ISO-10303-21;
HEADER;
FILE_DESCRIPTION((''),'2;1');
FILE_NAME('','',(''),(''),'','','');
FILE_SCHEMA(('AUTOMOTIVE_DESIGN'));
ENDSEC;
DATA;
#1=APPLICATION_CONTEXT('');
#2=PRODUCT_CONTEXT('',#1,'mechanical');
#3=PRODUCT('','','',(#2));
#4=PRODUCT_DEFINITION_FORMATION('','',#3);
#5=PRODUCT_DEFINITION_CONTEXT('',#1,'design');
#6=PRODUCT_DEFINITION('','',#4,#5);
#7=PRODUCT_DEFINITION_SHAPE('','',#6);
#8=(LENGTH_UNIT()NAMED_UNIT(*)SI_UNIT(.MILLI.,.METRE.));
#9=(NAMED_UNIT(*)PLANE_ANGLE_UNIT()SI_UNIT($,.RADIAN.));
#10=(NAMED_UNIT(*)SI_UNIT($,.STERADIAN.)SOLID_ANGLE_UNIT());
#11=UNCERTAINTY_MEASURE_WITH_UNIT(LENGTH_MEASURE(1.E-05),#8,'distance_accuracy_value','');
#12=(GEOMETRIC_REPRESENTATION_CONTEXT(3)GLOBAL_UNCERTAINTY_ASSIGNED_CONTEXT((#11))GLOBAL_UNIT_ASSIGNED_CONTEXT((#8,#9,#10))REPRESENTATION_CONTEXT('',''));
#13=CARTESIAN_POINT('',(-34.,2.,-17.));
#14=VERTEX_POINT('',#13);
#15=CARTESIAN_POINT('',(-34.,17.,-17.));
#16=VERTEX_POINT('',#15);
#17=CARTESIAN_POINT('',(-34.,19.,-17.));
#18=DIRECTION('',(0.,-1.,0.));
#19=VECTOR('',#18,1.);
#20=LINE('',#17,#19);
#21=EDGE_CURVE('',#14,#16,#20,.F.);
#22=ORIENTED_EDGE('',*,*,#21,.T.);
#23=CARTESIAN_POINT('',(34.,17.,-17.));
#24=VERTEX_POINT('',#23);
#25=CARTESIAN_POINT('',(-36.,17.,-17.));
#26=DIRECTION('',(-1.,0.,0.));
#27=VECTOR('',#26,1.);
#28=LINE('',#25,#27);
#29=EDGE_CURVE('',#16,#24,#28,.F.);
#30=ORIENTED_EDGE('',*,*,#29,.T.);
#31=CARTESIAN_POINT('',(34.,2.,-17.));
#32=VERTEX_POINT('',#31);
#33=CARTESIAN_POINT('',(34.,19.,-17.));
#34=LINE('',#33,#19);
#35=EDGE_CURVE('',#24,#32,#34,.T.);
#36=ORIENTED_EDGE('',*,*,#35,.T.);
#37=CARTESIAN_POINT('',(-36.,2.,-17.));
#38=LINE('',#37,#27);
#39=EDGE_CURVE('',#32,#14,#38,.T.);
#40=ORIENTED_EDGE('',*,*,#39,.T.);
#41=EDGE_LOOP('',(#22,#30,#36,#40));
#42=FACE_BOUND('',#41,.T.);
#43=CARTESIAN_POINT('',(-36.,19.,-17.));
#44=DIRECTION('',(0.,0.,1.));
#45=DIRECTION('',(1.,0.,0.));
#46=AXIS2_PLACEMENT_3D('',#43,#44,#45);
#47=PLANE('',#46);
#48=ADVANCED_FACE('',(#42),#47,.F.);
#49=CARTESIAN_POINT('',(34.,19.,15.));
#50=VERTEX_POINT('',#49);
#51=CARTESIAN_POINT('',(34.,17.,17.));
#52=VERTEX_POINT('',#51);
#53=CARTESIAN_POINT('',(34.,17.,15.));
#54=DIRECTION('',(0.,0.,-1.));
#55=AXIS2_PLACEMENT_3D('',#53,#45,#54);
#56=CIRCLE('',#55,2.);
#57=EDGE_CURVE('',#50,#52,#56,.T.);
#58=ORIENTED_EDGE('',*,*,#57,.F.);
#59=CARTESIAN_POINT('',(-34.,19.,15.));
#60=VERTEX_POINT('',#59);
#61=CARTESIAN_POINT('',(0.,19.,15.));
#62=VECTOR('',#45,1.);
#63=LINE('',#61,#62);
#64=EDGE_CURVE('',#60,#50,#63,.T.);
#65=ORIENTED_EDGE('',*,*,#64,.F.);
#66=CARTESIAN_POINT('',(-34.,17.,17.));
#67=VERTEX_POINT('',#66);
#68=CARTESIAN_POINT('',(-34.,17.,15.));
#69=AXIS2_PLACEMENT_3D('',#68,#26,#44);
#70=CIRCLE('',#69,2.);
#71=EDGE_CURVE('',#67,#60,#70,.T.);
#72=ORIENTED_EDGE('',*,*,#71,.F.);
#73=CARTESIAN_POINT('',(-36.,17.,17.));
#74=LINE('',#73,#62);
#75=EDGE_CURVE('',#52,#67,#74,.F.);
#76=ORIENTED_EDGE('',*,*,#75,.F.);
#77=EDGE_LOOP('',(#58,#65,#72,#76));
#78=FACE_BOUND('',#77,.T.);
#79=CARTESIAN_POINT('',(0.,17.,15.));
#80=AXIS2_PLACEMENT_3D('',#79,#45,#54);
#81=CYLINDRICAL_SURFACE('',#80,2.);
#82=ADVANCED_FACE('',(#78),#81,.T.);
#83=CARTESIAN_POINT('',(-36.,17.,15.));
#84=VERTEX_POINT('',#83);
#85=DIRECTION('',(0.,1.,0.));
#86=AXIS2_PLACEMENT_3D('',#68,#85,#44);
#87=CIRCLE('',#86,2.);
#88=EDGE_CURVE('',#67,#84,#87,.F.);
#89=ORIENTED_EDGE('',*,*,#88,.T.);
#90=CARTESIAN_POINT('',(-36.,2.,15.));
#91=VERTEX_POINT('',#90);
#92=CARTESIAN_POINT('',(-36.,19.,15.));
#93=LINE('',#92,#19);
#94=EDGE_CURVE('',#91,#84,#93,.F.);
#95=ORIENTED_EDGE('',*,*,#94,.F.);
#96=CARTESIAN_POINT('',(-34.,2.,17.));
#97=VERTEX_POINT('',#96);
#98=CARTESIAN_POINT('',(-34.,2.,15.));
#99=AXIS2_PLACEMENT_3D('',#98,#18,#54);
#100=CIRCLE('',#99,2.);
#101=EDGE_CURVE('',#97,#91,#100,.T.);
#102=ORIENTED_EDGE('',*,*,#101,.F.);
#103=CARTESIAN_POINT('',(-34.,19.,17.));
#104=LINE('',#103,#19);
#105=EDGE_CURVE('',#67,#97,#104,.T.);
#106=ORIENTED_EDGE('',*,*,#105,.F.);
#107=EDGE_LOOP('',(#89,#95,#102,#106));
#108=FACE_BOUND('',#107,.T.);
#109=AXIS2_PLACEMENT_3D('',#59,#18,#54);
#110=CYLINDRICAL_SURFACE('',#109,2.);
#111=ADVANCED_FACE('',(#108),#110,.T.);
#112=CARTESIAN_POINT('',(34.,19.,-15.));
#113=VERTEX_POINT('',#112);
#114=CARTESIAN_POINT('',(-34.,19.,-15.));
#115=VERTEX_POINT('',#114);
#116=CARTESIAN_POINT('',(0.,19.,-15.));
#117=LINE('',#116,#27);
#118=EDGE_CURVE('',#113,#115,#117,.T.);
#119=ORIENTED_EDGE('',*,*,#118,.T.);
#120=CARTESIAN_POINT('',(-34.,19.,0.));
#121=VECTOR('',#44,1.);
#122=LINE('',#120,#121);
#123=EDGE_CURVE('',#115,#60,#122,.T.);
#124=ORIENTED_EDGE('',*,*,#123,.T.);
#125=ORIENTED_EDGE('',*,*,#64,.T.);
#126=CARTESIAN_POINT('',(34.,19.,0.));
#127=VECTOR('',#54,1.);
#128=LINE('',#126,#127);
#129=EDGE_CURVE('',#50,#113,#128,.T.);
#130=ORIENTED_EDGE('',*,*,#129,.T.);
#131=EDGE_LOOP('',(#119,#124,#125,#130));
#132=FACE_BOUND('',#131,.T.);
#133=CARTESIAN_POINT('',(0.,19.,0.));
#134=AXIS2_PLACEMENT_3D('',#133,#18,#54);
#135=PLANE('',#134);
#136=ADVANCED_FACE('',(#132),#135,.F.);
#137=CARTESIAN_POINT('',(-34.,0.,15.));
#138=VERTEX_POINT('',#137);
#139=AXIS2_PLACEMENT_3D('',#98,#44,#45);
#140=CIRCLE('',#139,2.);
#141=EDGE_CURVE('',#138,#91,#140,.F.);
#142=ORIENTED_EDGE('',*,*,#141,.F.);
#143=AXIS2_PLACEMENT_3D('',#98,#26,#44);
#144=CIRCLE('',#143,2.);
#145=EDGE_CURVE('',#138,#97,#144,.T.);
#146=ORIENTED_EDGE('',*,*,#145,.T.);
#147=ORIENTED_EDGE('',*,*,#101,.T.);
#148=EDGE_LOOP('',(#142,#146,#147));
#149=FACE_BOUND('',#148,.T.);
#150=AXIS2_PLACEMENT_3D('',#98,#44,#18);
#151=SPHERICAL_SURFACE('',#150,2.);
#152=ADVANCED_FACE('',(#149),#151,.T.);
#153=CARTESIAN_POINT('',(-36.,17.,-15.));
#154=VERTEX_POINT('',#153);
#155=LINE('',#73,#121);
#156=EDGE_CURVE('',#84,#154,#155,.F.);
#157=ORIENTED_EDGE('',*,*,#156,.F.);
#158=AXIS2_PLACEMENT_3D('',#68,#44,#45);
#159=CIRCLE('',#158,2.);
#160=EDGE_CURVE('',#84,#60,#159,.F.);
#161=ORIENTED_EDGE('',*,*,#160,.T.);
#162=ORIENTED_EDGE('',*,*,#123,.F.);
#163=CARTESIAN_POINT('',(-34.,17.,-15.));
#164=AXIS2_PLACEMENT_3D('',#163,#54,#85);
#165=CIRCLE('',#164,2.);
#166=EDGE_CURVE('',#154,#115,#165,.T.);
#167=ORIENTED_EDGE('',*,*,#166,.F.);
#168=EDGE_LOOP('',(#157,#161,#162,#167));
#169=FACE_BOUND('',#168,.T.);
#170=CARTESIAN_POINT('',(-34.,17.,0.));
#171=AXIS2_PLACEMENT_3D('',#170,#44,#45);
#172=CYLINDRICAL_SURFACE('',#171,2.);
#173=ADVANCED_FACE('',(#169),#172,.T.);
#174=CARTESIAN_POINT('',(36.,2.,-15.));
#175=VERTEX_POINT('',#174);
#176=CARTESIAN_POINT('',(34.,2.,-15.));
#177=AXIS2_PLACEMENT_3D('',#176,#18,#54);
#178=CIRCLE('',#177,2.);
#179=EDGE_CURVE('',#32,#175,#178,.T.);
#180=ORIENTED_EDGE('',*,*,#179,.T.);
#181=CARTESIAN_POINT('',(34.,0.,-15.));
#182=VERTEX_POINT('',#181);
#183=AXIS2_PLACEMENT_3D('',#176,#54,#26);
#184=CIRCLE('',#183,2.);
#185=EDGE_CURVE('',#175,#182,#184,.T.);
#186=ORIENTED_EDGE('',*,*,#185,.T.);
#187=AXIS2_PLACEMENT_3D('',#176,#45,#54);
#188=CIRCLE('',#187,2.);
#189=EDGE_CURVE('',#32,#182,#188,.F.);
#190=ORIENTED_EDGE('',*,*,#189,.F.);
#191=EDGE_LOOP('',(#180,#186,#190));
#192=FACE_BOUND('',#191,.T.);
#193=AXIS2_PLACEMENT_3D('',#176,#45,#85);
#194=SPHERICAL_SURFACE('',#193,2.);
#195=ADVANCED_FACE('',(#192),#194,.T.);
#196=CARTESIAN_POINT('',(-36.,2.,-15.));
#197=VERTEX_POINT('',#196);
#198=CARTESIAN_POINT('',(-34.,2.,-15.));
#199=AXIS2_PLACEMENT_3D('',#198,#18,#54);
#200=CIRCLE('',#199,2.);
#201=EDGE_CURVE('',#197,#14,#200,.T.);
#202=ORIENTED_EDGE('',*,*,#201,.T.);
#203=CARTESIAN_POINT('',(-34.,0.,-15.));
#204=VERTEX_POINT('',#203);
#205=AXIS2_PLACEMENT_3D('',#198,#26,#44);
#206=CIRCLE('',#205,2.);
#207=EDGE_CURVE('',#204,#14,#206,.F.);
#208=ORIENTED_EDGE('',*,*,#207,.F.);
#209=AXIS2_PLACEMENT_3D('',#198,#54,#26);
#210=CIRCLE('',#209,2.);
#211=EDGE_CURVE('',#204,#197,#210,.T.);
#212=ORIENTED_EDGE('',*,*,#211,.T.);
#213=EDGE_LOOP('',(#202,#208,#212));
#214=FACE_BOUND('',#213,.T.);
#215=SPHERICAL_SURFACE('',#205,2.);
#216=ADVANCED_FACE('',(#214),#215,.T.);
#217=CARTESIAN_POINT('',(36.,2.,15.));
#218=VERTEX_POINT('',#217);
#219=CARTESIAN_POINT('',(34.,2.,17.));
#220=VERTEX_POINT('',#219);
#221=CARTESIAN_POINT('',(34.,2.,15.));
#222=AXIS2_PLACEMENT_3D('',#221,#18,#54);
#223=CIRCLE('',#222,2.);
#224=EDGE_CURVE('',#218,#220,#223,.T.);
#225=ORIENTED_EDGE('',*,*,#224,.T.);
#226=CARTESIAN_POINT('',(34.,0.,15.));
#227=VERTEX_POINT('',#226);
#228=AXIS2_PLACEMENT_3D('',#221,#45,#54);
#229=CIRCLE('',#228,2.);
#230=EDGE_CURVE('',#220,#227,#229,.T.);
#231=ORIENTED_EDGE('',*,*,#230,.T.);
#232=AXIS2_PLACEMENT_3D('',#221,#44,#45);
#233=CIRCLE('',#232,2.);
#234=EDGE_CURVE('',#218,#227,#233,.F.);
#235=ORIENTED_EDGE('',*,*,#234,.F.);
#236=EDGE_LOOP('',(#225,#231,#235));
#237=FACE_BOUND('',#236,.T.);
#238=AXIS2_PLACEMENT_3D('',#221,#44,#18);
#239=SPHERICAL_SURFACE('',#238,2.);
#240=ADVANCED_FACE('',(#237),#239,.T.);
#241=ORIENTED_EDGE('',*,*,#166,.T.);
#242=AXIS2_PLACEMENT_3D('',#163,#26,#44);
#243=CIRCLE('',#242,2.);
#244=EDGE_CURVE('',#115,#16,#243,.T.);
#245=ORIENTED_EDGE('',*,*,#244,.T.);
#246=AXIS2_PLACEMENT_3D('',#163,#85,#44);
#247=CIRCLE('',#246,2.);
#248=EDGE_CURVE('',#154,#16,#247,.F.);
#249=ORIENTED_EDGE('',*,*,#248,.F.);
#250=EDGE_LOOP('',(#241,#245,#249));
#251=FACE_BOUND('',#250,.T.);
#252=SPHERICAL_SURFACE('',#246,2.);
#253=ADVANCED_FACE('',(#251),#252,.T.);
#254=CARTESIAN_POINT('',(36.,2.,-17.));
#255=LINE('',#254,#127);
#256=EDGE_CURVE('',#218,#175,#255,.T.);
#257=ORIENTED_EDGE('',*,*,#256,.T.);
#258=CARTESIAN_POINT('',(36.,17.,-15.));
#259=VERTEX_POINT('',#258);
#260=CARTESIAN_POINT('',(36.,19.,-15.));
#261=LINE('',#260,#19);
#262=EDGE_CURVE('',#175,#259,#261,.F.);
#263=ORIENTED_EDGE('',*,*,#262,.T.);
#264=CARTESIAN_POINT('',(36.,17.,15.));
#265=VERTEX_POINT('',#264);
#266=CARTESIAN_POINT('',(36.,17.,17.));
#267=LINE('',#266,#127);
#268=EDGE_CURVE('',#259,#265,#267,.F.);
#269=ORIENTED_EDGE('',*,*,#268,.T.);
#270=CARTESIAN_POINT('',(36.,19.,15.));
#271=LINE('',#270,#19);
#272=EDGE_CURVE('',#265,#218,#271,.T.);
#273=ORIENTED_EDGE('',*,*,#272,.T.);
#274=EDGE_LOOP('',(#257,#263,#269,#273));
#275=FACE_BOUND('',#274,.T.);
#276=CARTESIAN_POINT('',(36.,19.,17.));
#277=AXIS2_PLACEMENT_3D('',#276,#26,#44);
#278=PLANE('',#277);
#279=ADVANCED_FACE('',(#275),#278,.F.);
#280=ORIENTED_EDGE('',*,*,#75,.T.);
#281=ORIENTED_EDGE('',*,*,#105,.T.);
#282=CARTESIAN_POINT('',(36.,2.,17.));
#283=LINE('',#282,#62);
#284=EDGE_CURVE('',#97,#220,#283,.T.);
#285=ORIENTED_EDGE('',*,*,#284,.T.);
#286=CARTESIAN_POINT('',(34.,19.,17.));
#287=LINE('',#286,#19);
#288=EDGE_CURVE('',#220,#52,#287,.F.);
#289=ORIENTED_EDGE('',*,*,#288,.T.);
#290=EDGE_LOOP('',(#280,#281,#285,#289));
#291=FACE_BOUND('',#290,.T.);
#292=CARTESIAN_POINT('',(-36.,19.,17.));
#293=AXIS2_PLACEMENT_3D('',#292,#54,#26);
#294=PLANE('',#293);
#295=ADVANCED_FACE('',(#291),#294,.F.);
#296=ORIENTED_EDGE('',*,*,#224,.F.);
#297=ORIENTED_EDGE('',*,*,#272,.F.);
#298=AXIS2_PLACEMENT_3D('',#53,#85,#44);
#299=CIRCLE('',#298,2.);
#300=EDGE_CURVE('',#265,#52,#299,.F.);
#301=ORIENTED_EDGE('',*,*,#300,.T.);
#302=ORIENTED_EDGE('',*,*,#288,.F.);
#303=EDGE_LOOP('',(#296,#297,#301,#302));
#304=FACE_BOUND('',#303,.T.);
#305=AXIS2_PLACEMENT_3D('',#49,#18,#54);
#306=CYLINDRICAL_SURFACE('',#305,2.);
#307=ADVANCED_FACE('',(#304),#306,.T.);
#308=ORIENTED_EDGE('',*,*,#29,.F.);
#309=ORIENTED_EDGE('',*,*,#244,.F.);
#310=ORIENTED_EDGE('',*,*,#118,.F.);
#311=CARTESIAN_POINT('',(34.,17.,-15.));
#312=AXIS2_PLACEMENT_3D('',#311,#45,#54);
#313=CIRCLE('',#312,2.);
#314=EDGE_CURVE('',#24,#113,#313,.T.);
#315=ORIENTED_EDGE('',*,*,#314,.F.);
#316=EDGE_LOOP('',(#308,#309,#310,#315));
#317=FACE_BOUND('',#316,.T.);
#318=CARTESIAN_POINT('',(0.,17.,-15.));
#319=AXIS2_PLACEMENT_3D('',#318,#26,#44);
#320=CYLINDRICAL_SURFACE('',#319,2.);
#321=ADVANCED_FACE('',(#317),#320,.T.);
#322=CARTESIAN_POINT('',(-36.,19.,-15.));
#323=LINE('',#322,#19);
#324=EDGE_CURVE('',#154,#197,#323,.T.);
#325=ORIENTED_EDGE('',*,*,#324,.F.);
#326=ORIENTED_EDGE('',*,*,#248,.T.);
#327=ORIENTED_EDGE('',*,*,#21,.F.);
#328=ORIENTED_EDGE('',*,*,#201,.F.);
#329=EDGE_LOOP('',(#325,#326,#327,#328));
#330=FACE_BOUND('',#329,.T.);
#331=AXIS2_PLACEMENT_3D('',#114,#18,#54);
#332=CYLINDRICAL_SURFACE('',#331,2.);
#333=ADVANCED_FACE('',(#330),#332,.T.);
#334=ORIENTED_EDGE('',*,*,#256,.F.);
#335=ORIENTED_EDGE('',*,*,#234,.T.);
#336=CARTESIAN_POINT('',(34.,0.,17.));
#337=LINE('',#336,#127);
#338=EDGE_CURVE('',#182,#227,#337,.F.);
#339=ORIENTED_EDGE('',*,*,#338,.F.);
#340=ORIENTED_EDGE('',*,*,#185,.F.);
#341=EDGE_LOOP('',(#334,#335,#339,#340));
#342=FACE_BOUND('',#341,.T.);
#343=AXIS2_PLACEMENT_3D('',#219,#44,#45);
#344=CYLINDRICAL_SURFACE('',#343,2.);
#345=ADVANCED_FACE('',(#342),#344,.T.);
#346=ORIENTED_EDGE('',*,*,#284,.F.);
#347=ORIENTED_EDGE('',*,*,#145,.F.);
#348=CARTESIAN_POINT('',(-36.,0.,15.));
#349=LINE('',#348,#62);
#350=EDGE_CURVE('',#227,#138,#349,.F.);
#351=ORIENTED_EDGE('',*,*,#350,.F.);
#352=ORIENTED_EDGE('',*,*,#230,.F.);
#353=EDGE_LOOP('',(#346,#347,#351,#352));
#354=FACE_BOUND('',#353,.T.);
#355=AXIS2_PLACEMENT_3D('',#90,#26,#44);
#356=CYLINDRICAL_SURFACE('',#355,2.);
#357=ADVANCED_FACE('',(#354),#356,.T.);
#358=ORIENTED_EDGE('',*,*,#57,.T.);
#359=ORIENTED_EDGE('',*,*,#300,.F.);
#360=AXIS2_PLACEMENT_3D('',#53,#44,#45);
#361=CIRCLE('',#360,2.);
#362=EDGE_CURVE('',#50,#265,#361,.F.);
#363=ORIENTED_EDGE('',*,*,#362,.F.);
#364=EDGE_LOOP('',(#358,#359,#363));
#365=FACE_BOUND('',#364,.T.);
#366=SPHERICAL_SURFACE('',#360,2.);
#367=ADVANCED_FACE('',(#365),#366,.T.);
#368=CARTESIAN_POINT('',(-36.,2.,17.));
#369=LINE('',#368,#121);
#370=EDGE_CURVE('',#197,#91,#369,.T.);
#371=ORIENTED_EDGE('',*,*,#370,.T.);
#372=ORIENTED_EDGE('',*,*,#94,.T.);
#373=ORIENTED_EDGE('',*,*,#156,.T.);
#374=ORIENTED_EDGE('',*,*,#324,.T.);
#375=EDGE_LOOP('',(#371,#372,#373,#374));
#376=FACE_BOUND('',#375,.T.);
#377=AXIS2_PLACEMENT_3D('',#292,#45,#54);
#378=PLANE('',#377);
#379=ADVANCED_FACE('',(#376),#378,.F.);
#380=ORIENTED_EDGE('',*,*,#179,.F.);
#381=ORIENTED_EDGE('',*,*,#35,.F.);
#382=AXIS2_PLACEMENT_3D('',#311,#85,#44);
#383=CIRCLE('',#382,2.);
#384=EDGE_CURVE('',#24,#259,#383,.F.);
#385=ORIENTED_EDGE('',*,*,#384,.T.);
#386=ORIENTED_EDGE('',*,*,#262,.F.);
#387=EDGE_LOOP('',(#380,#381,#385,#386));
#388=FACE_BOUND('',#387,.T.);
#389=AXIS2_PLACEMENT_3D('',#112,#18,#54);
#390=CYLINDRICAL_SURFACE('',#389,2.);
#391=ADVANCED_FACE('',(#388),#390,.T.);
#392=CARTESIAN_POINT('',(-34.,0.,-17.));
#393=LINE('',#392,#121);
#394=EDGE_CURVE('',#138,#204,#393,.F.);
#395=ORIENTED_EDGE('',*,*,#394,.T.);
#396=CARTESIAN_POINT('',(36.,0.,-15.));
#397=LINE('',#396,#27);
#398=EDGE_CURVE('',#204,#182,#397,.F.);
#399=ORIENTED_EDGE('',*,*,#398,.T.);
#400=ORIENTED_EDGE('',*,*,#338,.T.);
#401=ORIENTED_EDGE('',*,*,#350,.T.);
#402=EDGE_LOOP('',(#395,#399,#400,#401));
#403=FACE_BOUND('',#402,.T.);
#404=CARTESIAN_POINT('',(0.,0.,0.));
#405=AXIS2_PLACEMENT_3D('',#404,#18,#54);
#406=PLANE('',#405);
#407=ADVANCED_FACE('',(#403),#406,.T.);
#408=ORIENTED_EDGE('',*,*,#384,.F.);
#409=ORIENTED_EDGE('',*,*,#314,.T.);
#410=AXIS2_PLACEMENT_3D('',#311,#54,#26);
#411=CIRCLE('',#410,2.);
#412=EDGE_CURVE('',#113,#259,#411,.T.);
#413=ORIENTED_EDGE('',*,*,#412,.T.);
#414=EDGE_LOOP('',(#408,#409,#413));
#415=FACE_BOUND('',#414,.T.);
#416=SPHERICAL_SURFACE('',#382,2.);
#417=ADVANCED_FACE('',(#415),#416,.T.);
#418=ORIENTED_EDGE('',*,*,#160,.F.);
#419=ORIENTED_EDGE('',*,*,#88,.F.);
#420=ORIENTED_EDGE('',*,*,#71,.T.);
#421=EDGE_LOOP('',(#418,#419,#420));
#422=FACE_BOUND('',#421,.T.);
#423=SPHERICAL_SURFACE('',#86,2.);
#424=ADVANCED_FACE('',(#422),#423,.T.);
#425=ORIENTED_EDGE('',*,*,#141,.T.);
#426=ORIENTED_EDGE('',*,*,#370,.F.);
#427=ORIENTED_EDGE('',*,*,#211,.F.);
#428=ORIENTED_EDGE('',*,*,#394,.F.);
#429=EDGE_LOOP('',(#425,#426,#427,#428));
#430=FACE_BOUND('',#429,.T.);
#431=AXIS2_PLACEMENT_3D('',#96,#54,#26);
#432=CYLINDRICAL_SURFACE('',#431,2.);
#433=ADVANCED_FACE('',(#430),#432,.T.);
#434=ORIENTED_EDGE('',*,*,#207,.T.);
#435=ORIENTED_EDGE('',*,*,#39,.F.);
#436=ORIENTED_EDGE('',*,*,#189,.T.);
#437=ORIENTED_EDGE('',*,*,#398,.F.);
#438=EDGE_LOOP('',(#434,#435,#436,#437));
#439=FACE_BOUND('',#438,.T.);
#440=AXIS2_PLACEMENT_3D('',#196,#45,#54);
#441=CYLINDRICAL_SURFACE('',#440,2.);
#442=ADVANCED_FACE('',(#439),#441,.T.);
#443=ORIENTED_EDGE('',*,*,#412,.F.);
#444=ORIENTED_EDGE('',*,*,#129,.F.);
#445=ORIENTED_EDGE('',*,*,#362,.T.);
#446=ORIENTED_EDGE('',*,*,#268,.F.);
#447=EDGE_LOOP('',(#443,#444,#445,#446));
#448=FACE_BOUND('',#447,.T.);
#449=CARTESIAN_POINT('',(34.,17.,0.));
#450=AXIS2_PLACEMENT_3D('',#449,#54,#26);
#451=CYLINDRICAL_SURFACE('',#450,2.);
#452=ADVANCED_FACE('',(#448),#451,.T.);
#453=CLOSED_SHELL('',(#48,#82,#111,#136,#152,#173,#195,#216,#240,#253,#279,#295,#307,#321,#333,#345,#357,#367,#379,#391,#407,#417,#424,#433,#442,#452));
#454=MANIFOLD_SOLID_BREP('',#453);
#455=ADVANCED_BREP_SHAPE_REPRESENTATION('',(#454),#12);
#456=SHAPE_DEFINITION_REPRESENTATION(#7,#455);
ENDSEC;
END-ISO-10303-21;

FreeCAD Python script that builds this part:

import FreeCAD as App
import Part
import Sketcher

doc = App.newDocument("Part")
params = doc.addObject("Spreadsheet::Sheet", "Params")
for row, (alias, value) in enumerate([
    ("sketch1_width", "72 mm"),
    ("sketch1_height", "34 mm"),
    ("pad1_length", "19 mm"),
    ("fillet_radius", "2 mm"),
], start=1):
    params.set(f"A{row}", alias)
    params.set(f"B{row}", "=" + value)
    params.setAlias(f"B{row}", alias)

body = doc.addObject("PartDesign::Body", "Body")

sketch1 = doc.addObject("Sketcher::SketchObject", "Sketch")
body.addObject(sketch1)
sketch1.AttachmentSupport = (doc.XZ_Plane, [""])
sketch1.MapMode = "FlatFace"
sketch1.addGeometry([
    Part.LineSegment(App.Vector(-36, -17, 0), App.Vector(-36, 17, 0)),
    Part.LineSegment(App.Vector(-36, 17, 0), App.Vector(36, 17, 0)),
    Part.LineSegment(App.Vector(36, 17, 0), App.Vector(36, -17, 0)),
    Part.LineSegment(App.Vector(36, -17, 0), App.Vector(-36, -17, 0)),
], False)
sketch1.addConstraint([
    Sketcher.Constraint("Coincident", 0, 2, 1, 1),
    Sketcher.Constraint("Coincident", 1, 2, 2, 1),
    Sketcher.Constraint("Coincident", 2, 2, 3, 1),
    Sketcher.Constraint("Coincident", 3, 2, 0, 1),
    Sketcher.Constraint("Vertical", 0),
    Sketcher.Constraint("Horizontal", 1),
    Sketcher.Constraint("Vertical", 2),
    Sketcher.Constraint("Horizontal", 3),
    Sketcher.Constraint("Symmetric", 0, 2, 2, 2, -1, 1),
    Sketcher.Constraint("DistanceX", 1, 1, 1, 2, 72.0),
    Sketcher.Constraint("DistanceY", 0, 1, 0, 2, 34.0),
])
sketch1.setExpression("Constraints[9]", "Params.sketch1_width")
sketch1.setExpression("Constraints[10]", "Params.sketch1_height")
pad1 = doc.addObject("PartDesign::Pad", "Pad")
body.addObject(pad1)
pad1.Profile = sketch1
pad1.setExpression("Length", "Params.pad1_length")
pad1.Reversed = True
doc.recompute()

fillet = doc.addObject("PartDesign::Fillet", "Fillet")
body.addObject(fillet)
fillet.Base = (pad1, ["Edge1"])
fillet.UseAllEdges = True
fillet.setExpression("Radius", "Params.fillet_radius")

doc.recompute()
